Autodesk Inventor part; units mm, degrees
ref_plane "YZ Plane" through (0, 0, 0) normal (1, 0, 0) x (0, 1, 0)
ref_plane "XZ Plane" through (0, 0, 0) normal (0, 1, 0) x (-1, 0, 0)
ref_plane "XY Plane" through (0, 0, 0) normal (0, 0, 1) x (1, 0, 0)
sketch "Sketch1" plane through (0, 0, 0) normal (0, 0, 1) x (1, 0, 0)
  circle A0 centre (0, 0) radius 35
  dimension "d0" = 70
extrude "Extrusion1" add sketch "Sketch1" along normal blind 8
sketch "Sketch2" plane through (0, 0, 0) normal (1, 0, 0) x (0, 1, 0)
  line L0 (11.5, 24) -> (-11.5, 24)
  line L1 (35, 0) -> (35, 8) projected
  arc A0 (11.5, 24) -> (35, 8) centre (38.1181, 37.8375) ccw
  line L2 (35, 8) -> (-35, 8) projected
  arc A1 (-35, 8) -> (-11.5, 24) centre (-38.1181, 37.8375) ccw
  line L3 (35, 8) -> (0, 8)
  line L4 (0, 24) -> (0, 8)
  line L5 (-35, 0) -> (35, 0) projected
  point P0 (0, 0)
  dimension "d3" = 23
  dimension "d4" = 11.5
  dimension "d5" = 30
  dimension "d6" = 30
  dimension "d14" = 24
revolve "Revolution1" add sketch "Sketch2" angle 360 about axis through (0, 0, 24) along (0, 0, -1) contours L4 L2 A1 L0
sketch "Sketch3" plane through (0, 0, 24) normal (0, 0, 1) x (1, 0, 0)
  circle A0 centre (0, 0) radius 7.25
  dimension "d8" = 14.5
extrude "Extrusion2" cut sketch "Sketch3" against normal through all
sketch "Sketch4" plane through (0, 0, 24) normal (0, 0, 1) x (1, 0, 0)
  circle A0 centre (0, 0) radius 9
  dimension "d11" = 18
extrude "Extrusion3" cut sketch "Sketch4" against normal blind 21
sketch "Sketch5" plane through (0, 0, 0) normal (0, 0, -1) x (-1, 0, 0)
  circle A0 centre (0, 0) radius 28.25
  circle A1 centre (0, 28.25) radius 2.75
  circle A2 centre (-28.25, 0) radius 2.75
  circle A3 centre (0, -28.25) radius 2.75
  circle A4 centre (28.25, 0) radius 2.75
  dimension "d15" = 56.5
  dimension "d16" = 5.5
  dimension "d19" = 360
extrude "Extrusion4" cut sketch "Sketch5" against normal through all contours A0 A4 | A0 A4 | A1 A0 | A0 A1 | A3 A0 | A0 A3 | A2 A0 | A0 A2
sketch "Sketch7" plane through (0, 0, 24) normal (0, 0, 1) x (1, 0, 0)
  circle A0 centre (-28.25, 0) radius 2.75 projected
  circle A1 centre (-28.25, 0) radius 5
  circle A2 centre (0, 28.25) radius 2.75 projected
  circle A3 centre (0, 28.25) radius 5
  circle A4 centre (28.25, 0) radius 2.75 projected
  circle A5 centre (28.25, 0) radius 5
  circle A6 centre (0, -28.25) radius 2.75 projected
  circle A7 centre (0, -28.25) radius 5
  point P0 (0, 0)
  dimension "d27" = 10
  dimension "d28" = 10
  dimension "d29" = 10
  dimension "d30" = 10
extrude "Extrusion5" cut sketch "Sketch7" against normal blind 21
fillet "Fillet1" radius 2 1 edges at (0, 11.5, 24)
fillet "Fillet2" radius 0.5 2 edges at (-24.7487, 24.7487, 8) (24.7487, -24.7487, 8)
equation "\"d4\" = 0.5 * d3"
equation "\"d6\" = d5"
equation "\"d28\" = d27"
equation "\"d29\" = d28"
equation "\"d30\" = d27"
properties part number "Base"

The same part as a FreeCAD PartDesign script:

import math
import FreeCAD as App
import Part
import Sketcher


def edges_at(feature, points):
    """Names of the edges that pass closest to the given points."""
    edges = feature.Shape.Edges
    near = lambda p: min(range(len(edges)), key=lambda i: edges[i].distToShape(Part.Vertex(*p))[0])
    return sorted({f"Edge{near(p) + 1}" for p in points})

doc = App.newDocument("Part")
body = doc.addObject("PartDesign::Body", "Body")

# Sketch on XY plane
sketch1 = doc.addObject("Sketcher::SketchObject", "Sketch")
body.addObject(sketch1)
sketch1.AttachmentSupport = (doc.XY_Plane, [""])
sketch1.MapMode = "FlatFace"
sketch1.addGeometry(Part.Circle(App.Vector(0, 0, 0), App.Vector(0, 0, 1), 35), False)
sketch1.addConstraint(Sketcher.Constraint("Coincident", 0, 3, -1, 1))
sketch1.addConstraint(Sketcher.Constraint("Diameter", 0, 70.0))
pad1 = doc.addObject("PartDesign::Pad", "Pad")
body.addObject(pad1)
pad1.Profile = sketch1
pad1.Length = 8

# Sketch on YZ plane
sketch2 = doc.addObject("Sketcher::SketchObject", "Sketch001")
body.addObject(sketch2)
sketch2.AttachmentSupport = (doc.YZ_Plane, [""])
sketch2.MapMode = "FlatFace"
sketch2.addGeometry(Part.LineSegment(App.Vector(0, 8, 0), App.Vector(0, 24, 0)), False)
sketch2.addGeometry(Part.LineSegment(App.Vector(0, 24, 0), App.Vector(-12, 24, 0)), False)
sketch2.addGeometry(Part.ArcOfCircle(Part.Circle(App.Vector(-38, 38, 0), App.Vector(0, 0, 1), 30), math.radians(-84), math.radians(-27)), False)
sketch2.addGeometry(Part.LineSegment(App.Vector(-35, 8, 0), App.Vector(0, 8, 0)), False)
sketch2.addConstraint(Sketcher.Constraint("Coincident", 0, 2, 1, 1))
sketch2.addConstraint(Sketcher.Constraint("Coincident", 1, 2, 2, 2))
sketch2.addConstraint(Sketcher.Constraint("Coincident", 2, 1, 3, 1))
sketch2.addConstraint(Sketcher.Constraint("Coincident", 3, 2, 0, 1))
sketch2.addConstraint(Sketcher.Constraint("Vertical", 0))
sketch2.addConstraint(Sketcher.Constraint("Horizontal", 1))
sketch2.addConstraint(Sketcher.Constraint("Horizontal", 3))
sketch2.addConstraint(Sketcher.Constraint("PointOnObject", 0, 2, -2))
sketch2.addConstraint(Sketcher.Constraint("Radius", 2, 30.0))
sketch2.addConstraint(Sketcher.Constraint("DistanceX", 1, 2, 1, 1, 11.5))
sketch2.addConstraint(Sketcher.Constraint("DistanceY", -1, 1, 0, 2, 24.0))
sketch2.addConstraint(Sketcher.Constraint("DistanceX", 3, 1, 3, 2, 35.0))
sketch2.addConstraint(Sketcher.Constraint("DistanceY", 0, 1, 0, 2, 16.0))
revolution = doc.addObject("PartDesign::Revolution", "Revolution")
body.addObject(revolution)
revolution.Profile = sketch2
revolution.ReferenceAxis = (sketch2, ["V_Axis"])
revolution.Angle = 360

# Sketch on XY plane
sketch3 = doc.addObject("Sketcher::SketchObject", "Sketch002")
body.addObject(sketch3)
sketch3.AttachmentSupport = (doc.XY_Plane, [""])
sketch3.MapMode = "FlatFace"
sketch3.AttachmentOffset = App.Placement(App.Vector(0, 0, 24), App.Rotation())
sketch3.addGeometry(Part.Circle(App.Vector(0, 0, 0), App.Vector(0, 0, 1), 7), False)
sketch3.addConstraint(Sketcher.Constraint("Coincident", 0, 3, -1, 1))
sketch3.addConstraint(Sketcher.Constraint("Diameter", 0, 14.5))
pocket1 = doc.addObject("PartDesign::Pocket", "Pocket")
body.addObject(pocket1)
pocket1.Profile = sketch3
pocket1.Type = "ThroughAll"

# Sketch on XY plane
sketch4 = doc.addObject("Sketcher::SketchObject", "Sketch003")
body.addObject(sketch4)
sketch4.AttachmentSupport = (doc.XY_Plane, [""])
sketch4.MapMode = "FlatFace"
sketch4.AttachmentOffset = App.Placement(App.Vector(0, 0, 24), App.Rotation())
sketch4.addGeometry(Part.Circle(App.Vector(0, 0, 0), App.Vector(0, 0, 1), 9), False)
sketch4.addConstraint(Sketcher.Constraint("Coincident", 0, 3, -1, 1))
sketch4.addConstraint(Sketcher.Constraint("Diameter", 0, 18.0))
pocket2 = doc.addObject("PartDesign::Pocket", "Pocket001")
body.addObject(pocket2)
pocket2.Profile = sketch4
pocket2.Length = 21

# Sketch on XY plane
sketch5 = doc.addObject("Sketcher::SketchObject", "Sketch004")
body.addObject(sketch5)
sketch5.AttachmentSupport = (doc.XY_Plane, [""])
sketch5.MapMode = "FlatFace"
sketch5.addGeometry(Part.Circle(App.Vector(-28.2, 0, 0), App.Vector(0, 0, 1), 2.8), False)
sketch5.addGeometry(Part.Circle(App.Vector(0, 28.2, 0), App.Vector(0, 0, 1), 2.8), False)
sketch5.addGeometry(Part.Circle(App.Vector(0, -28.2, 0), App.Vector(0, 0, 1), 2.8), False)
sketch5.addGeometry(Part.Circle(App.Vector(28.2, 0, 0), App.Vector(0, 0, 1), 2.8), False)
sketch5.addConstraint(Sketcher.Constraint("Equal", 0, 1))
sketch5.addConstraint(Sketcher.Constraint("Equal", 1, 2))
sketch5.addConstraint(Sketcher.Constraint("Equal", 2, 3))
sketch5.addConstraint(Sketcher.Constraint("Symmetric", 1, 3, 2, 3, -1, 1))
sketch5.addConstraint(Sketcher.Constraint("Symmetric", 0, 3, 3, 3, -1, 1))
sketch5.addConstraint(Sketcher.Constraint("PointOnObject", 0, 3, -1))
sketch5.addConstraint(Sketcher.Constraint("PointOnObject", 1, 3, -2))
sketch5.addConstraint(Sketcher.Constraint("Diameter", 0, 5.5))
sketch5.addConstraint(Sketcher.Constraint("DistanceY", 2, 3, 1, 3, 56.5))
sketch5.addConstraint(Sketcher.Constraint("DistanceX", 0, 3, 3, 3, 56.5))
pocket3 = doc.addObject("PartDesign::Pocket", "Pocket002")
body.addObject(pocket3)
pocket3.Profile = sketch5
pocket3.Type = "ThroughAll"
pocket3.Reversed = True

# Sketch on XY plane
sketch6 = doc.addObject("Sketcher::SketchObject", "Sketch005")
body.addObject(sketch6)
sketch6.AttachmentSupport = (doc.XY_Plane, [""])
sketch6.MapMode = "FlatFace"
sketch6.AttachmentOffset = App.Placement(App.Vector(0, 0, 24), App.Rotation())
sketch6.addGeometry(Part.Circle(App.Vector(-28.2, 0, 0), App.Vector(0, 0, 1), 5), False)
sketch6.addGeometry(Part.Circle(App.Vector(-28.2, 0, 0), App.Vector(0, 0, 1), 2.8), False)
sketch6.addGeometry(Part.Circle(App.Vector(0, 28.2, 0), App.Vector(0, 0, 1), 5), False)
sketch6.addGeometry(Part.Circle(App.Vector(0, 28.2, 0), App.Vector(0, 0, 1), 2.8), False)
sketch6.addGeometry(Part.Circle(App.Vector(28.2, 0, 0), App.Vector(0, 0, 1), 5), False)
sketch6.addGeometry(Part.Circle(App.Vector(28.2, 0, 0), App.Vector(0, 0, 1), 2.8), False)
sketch6.addGeometry(Part.Circle(App.Vector(0, -28.2, 0), App.Vector(0, 0, 1), 5), False)
sketch6.addGeometry(Part.Circle(App.Vector(0, -28.2, 0), App.Vector(0, 0, 1), 2.8), False)
sketch6.addConstraint(Sketcher.Constraint("Coincident", 1, 3, 0, 3))
sketch6.addConstraint(Sketcher.Constraint("Coincident", 3, 3, 2, 3))
sketch6.addConstraint(Sketcher.Constraint("Coincident", 5, 3, 4, 3))
sketch6.addConstraint(Sketcher.Constraint("Coincident", 7, 3, 6, 3))
sketch6.addConstraint(Sketcher.Constraint("Equal", 0, 2))
sketch6.addConstraint(Sketcher.Constraint("Equal", 1, 3))
sketch6.addConstraint(Sketcher.Constraint("Equal", 2, 4))
sketch6.addConstraint(Sketcher.Constraint("Equal", 3, 5))
sketch6.addConstraint(Sketcher.Constraint("Equal", 4, 6))
sketch6.addConstraint(Sketcher.Constraint("Equal", 5, 7))
sketch6.addConstraint(Sketcher.Constraint("Symmetric", 0, 3, 4, 3, -1, 1))
sketch6.addConstraint(Sketcher.Constraint("Symmetric", 2, 3, 6, 3, -1, 1))
sketch6.addConstraint(Sketcher.Constraint("PointOnObject", 0, 3, -1))
sketch6.addConstraint(Sketcher.Constraint("PointOnObject", 2, 3, -2))
sketch6.addConstraint(Sketcher.Constraint("Diameter", 0, 10.0))
sketch6.addConstraint(Sketcher.Constraint("Diameter", 1, 5.5))
sketch6.addConstraint(Sketcher.Constraint("DistanceX", 0, 3, 4, 3, 56.5))
sketch6.addConstraint(Sketcher.Constraint("DistanceY", 6, 3, 2, 3, 56.5))
pocket4 = doc.addObject("PartDesign::Pocket", "Pocket003")
body.addObject(pocket4)
pocket4.Profile = sketch6
pocket4.Length = 21
doc.recompute()

fillet = doc.addObject("PartDesign::Fillet", "Fillet")
body.addObject(fillet)
fillet.Base = (pocket4, edges_at(pocket4, [(0, 11.5, 24)]))
fillet.Radius = 2
doc.recompute()

fillet2 = doc.addObject("PartDesign::Fillet", "Fillet001")
body.addObject(fillet2)
fillet2.Base = (fillet, edges_at(fillet, [(-24.749, 24.749, 8), (24.749, -24.749, 8)]))
fillet2.Radius = 0.5

doc.recompute()
